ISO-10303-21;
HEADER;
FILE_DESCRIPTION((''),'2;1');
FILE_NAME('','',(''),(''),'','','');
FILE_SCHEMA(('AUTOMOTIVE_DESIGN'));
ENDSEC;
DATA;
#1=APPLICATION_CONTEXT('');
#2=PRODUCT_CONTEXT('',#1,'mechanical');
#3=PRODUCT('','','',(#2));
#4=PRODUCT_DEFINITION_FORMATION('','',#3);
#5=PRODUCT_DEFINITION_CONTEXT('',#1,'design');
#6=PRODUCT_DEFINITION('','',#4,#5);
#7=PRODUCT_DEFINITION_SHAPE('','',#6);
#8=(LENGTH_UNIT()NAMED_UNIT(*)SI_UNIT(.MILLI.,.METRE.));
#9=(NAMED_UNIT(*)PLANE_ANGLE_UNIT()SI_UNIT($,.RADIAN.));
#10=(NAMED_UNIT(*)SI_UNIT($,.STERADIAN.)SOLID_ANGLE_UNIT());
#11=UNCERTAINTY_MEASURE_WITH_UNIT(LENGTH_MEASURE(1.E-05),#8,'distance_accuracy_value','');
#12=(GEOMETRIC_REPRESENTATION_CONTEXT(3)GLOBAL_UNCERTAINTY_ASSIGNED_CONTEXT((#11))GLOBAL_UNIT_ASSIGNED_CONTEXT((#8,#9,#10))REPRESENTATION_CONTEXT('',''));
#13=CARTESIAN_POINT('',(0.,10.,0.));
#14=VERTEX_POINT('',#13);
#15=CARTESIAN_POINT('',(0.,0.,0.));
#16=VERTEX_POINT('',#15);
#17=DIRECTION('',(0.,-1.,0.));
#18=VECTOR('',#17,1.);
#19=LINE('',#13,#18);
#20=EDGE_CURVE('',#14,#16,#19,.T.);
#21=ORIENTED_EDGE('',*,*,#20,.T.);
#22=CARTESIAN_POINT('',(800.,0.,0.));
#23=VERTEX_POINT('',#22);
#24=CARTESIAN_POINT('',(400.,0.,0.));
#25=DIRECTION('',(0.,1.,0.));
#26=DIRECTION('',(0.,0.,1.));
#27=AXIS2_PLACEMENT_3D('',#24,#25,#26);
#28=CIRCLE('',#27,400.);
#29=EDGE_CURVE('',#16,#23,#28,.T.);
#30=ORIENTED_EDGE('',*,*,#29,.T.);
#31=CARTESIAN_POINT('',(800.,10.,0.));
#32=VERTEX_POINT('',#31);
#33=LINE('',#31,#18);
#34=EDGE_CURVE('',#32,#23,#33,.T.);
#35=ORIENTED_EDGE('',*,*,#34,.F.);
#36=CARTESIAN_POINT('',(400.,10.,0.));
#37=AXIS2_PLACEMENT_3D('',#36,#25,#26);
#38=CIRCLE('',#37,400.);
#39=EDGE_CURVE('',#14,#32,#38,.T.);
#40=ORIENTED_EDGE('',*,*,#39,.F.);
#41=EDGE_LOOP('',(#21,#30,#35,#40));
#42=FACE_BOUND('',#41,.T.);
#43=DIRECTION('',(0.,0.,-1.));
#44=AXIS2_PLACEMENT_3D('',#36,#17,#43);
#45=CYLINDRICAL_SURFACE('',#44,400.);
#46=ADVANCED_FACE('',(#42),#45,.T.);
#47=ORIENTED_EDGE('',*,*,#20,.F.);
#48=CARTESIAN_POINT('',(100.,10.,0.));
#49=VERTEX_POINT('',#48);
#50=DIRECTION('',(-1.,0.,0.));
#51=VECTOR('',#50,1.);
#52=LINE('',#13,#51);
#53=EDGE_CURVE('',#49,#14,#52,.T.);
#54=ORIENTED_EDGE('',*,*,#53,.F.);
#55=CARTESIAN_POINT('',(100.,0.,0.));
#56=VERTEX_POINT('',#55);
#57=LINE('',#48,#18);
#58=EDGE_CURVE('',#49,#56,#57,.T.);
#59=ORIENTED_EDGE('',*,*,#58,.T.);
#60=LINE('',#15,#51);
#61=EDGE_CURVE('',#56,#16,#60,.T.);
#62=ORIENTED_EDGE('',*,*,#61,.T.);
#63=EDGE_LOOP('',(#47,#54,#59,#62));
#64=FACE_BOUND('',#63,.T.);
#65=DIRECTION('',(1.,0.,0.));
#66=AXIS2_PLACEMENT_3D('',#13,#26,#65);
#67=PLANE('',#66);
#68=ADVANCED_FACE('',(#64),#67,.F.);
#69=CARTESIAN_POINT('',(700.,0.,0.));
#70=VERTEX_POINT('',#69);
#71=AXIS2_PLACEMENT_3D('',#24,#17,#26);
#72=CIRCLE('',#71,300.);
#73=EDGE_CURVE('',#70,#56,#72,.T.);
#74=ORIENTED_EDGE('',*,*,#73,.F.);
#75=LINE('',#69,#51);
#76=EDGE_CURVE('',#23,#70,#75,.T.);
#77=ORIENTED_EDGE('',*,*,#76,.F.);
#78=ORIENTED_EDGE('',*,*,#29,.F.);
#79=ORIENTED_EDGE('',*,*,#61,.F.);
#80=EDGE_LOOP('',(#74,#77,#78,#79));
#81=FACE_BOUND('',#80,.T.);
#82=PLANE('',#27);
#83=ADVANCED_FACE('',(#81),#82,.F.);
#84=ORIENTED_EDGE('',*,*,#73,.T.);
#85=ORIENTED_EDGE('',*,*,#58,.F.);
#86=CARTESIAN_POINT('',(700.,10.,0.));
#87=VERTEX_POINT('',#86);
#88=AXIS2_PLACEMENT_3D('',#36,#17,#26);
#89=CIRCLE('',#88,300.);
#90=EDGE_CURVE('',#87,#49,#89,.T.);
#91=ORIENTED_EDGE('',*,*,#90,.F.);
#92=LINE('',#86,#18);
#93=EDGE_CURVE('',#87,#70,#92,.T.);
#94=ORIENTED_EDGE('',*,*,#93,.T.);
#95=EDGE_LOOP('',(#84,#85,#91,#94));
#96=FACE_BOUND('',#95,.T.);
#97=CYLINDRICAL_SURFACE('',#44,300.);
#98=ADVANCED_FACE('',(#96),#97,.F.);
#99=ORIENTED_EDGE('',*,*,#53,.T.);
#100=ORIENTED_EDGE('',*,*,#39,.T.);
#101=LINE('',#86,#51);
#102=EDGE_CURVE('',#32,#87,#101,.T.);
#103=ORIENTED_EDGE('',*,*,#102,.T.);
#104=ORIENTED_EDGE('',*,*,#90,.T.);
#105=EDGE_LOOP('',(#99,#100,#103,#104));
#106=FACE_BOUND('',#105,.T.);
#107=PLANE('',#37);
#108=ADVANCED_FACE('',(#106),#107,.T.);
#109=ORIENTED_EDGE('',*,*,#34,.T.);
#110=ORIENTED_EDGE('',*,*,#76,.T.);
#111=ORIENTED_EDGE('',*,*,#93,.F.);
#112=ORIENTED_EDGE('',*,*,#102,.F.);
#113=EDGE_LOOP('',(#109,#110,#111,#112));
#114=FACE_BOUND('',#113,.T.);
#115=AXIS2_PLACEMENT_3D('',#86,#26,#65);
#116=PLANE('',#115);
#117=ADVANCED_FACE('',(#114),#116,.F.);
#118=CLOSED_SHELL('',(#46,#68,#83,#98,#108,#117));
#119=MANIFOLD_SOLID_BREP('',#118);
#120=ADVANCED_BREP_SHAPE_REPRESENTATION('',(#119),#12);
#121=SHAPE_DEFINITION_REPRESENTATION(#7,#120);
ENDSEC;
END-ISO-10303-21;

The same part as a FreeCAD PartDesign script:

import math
import FreeCAD as App
import Part
import Sketcher
from FreeCAD import Vector

doc = App.newDocument("Part")
body = doc.addObject("PartDesign::Body", "Body")

sketch1 = doc.addObject("Sketcher::SketchObject", "Sketch")
body.addObject(sketch1)
sketch1.AttachmentSupport = (doc.XZ_Plane, [""])
sketch1.MapMode = "FlatFace"
sketch1.addGeometry([
    Part.LineSegment(Vector(100, 0, 0), Vector(0, 0, 0)),
    Part.ArcOfCircle(Part.Circle(Vector(400, 0, 0), Vector(0, 0, 1), 400), math.radians(0), math.radians(180)),
    Part.LineSegment(Vector(800, 0, 0), Vector(700, 0, 0)),
    Part.ArcOfCircle(Part.Circle(Vector(400, 0, 0), Vector(0, 0, 1), 300), math.radians(0), math.radians(180)),
], False)
sketch1.addConstraint([
    Sketcher.Constraint("Coincident", 0, 2, 1, 2),
    Sketcher.Constraint("Coincident", 1, 1, 2, 1),
    Sketcher.Constraint("Coincident", 2, 2, 3, 1),
    Sketcher.Constraint("Coincident", 3, 2, 0, 1),
    Sketcher.Constraint("Horizontal", 0),
    Sketcher.Constraint("Horizontal", 2),
    Sketcher.Constraint("Coincident", 0, 2, -1, 1),
    Sketcher.Constraint("Coincident", 3, 3, 1, 3),
    Sketcher.Constraint("PointOnObject", 1, 3, -1),
    Sketcher.Constraint("PointOnObject", 2, 2, -1),
    Sketcher.Constraint("Radius", 1, 400.0),
    Sketcher.Constraint("Radius", 3, 300.0),
])
pad1 = doc.addObject("PartDesign::Pad", "Pad")
body.addObject(pad1)
pad1.Profile = sketch1
pad1.Length = 10
pad1.Reversed = True

doc.recompute()
